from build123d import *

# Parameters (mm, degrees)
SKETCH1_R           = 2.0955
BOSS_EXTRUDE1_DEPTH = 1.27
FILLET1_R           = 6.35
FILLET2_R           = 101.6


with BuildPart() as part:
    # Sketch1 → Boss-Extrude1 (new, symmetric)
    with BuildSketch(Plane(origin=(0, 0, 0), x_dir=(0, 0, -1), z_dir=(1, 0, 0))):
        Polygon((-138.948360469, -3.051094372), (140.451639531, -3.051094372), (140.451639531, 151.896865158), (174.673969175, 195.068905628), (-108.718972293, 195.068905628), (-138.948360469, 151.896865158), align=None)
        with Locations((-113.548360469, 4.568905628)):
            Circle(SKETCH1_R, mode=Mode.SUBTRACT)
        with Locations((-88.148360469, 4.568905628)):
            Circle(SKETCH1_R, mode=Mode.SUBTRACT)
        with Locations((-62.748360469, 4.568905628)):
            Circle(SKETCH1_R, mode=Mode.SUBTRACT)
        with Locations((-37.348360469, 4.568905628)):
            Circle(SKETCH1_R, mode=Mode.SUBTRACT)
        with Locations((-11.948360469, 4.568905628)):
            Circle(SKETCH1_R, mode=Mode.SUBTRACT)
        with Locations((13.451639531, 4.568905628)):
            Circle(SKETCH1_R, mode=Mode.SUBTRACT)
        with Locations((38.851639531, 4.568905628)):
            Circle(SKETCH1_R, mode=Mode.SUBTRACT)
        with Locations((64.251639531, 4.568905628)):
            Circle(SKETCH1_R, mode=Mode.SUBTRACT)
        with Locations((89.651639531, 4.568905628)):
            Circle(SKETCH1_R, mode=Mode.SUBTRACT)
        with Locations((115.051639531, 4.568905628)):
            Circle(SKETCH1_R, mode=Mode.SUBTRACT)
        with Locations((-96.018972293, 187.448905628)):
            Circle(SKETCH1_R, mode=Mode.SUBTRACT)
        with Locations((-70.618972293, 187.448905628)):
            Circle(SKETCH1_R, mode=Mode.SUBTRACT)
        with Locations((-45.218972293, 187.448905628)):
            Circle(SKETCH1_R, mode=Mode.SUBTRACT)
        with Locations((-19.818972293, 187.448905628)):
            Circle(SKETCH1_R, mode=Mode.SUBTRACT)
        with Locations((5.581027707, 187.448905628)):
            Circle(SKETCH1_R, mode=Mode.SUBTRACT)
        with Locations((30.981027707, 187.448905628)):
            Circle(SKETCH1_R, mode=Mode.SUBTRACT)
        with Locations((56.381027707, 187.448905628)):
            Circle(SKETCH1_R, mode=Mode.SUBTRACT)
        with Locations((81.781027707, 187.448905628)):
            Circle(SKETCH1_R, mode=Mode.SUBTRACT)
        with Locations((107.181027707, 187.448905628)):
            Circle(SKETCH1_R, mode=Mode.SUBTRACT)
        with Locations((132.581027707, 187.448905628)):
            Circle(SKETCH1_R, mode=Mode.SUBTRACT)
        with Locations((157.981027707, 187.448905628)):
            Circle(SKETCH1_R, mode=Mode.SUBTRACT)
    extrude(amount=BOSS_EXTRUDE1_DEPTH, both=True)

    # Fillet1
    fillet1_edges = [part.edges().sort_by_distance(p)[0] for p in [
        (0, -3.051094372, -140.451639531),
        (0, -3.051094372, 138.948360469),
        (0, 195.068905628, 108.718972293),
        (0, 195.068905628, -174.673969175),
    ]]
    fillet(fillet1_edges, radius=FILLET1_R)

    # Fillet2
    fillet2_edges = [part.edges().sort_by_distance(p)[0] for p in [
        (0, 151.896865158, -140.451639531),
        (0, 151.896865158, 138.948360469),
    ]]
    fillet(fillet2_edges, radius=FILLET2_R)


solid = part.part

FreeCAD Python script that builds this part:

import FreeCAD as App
import Part
import Sketcher
from FreeCAD import Vector
Q = App.Units.Quantity


def edges_at(feature, points):
    """Names of the edges that pass closest to the given points."""
    edges = feature.Shape.Edges
    near = lambda p: min(range(len(edges)), key=lambda i: edges[i].distToShape(Part.Vertex(*p))[0])
    return sorted({f"Edge{near(p) + 1}" for p in points})

doc = App.newDocument("Part")
body = doc.addObject("PartDesign::Body", "Body")

sketch1 = body.newObject("Sketcher::SketchObject", "Sketch")
sketch1.AttachmentSupport = (doc.getObject("YZ_Plane"), [""])
sketch1.MapMode = "FlatFace"
sketch1.addGeometry([
    Part.LineSegment(Vector(-3.1, 138.9, 0), Vector(-3.1, -140.5, 0)),
    Part.LineSegment(Vector(-3.1, -140.5, 0), Vector(151.9, -140.5, 0)),
    Part.LineSegment(Vector(151.9, -140.5, 0), Vector(195.1, -174.7, 0)),
    Part.LineSegment(Vector(195.1, -174.7, 0), Vector(195.1, 108.7, 0)),
    Part.LineSegment(Vector(195.1, 108.7, 0), Vector(151.9, 138.9, 0)),
    Part.LineSegment(Vector(151.9, 138.9, 0), Vector(-3.1, 138.9, 0)),
    Part.Circle(Vector(4.6, 113.5, 0), Vector(0, 0, 1), 2.1),
    Part.Circle(Vector(4.6, 88.1, 0), Vector(0, 0, 1), 2.1),
    Part.Circle(Vector(4.6, 62.7, 0), Vector(0, 0, 1), 2.1),
    Part.Circle(Vector(4.6, 37.3, 0), Vector(0, 0, 1), 2.1),
    Part.Circle(Vector(4.6, 11.9, 0), Vector(0, 0, 1), 2.1),
    Part.Circle(Vector(4.6, -13.5, 0), Vector(0, 0, 1), 2.1),
    Part.Circle(Vector(4.6, -38.9, 0), Vector(0, 0, 1), 2.1),
    Part.Circle(Vector(4.6, -64.3, 0), Vector(0, 0, 1), 2.1),
    Part.Circle(Vector(4.6, -89.7, 0), Vector(0, 0, 1), 2.1),
    Part.Circle(Vector(4.6, -115.1, 0), Vector(0, 0, 1), 2.1),
    Part.Circle(Vector(187.4, 96, 0), Vector(0, 0, 1), 2.1),
    Part.Circle(Vector(187.4, 70.6, 0), Vector(0, 0, 1), 2.1),
    Part.Circle(Vector(187.4, 45.2, 0), Vector(0, 0, 1), 2.1),
    Part.Circle(Vector(187.4, 19.8, 0), Vector(0, 0, 1), 2.1),
    Part.Circle(Vector(187.4, -5.6, 0), Vector(0, 0, 1), 2.1),
    Part.Circle(Vector(187.4, -31, 0), Vector(0, 0, 1), 2.1),
    Part.Circle(Vector(187.4, -56.4, 0), Vector(0, 0, 1), 2.1),
    Part.Circle(Vector(187.4, -81.8, 0), Vector(0, 0, 1), 2.1),
    Part.Circle(Vector(187.4, -107.2, 0), Vector(0, 0, 1), 2.1),
    Part.Circle(Vector(187.4, -132.6, 0), Vector(0, 0, 1), 2.1),
    Part.Circle(Vector(187.4, -158, 0), Vector(0, 0, 1), 2.1),
], False)
sketch1.addConstraint([
    Sketcher.Constraint("Coincident", 0, 2, 1, 1),
    Sketcher.Constraint("Coincident", 1, 2, 2, 1),
    Sketcher.Constraint("Coincident", 2, 2, 3, 1),
    Sketcher.Constraint("Coincident", 3, 2, 4, 1),
    Sketcher.Constraint("Coincident", 4, 2, 5, 1),
    Sketcher.Constraint("Coincident", 5, 2, 0, 1),
    Sketcher.Constraint("Vertical", 0),
    Sketcher.Constraint("Horizontal", 1),
    Sketcher.Constraint("Vertical", 3),
    Sketcher.Constraint("Horizontal", 5),
    Sketcher.Constraint("Equal", 6, 7),
    Sketcher.Constraint("Equal", 7, 8),
    Sketcher.Constraint("Equal", 8, 9),
    Sketcher.Constraint("Equal", 9, 10),
    Sketcher.Constraint("Equal", 10, 11),
    Sketcher.Constraint("Equal", 11, 12),
    Sketcher.Constraint("Equal", 12, 13),
    Sketcher.Constraint("Equal", 13, 14),
    Sketcher.Constraint("Equal", 14, 15),
    Sketcher.Constraint("Equal", 15, 16),
    Sketcher.Constraint("Equal", 16, 17),
    Sketcher.Constraint("Equal", 17, 18),
    Sketcher.Constraint("Equal", 18, 19),
    Sketcher.Constraint("Equal", 19, 20),
    Sketcher.Constraint("Equal", 20, 21),
    Sketcher.Constraint("Equal", 21, 22),
    Sketcher.Constraint("Equal", 22, 23),
    Sketcher.Constraint("Equal", 23, 24),
    Sketcher.Constraint("Equal", 24, 25),
    Sketcher.Constraint("Equal", 25, 26),
    Sketcher.Constraint("Vertical", 6, 3, 7, 3),
    Sketcher.Constraint("Vertical", 7, 3, 8, 3),
    Sketcher.Constraint("Vertical", 8, 3, 9, 3),
    Sketcher.Constraint("Vertical", 9, 3, 10, 3),
    Sketcher.Constraint("Vertical", 10, 3, 11, 3),
    Sketcher.Constraint("Vertical", 11, 3, 12, 3),
    Sketcher.Constraint("Vertical", 12, 3, 13, 3),
    Sketcher.Constraint("Vertical", 13, 3, 14, 3),
    Sketcher.Constraint("Vertical", 14, 3, 15, 3),
    Sketcher.Constraint("Vertical", 16, 3, 17, 3),
    Sketcher.Constraint("Vertical", 17, 3, 18, 3),
    Sketcher.Constraint("Vertical", 18, 3, 19, 3),
    Sketcher.Constraint("Vertical", 19, 3, 20, 3),
    Sketcher.Constraint("Vertical", 20, 3, 21, 3),
    Sketcher.Constraint("Vertical", 21, 3, 22, 3),
    Sketcher.Constraint("Vertical", 22, 3, 23, 3),
    Sketcher.Constraint("Vertical", 23, 3, 24, 3),
    Sketcher.Constraint("Vertical", 24, 3, 25, 3),
    Sketcher.Constraint("Vertical", 25, 3, 26, 3),
    Sketcher.Constraint("Vertical", 1, 2, 4, 2),
    Sketcher.Constraint("DistanceY", 0, 2, 0, 1, Q("11 in")),
    Sketcher.Constraint("Diameter", 6, Q("0.165 in")),
    Sketcher.Constraint("Angle", 4, Q("145 deg")),
    Sketcher.Constraint("DistanceY", 7, 3, 6, 3, Q("1 in")),
    Sketcher.Constraint("DistanceY", 8, 3, 7, 3, Q("1 in")),
    Sketcher.Constraint("DistanceY", 9, 3, 8, 3, Q("1 in")),
    Sketcher.Constraint("DistanceY", 10, 3, 9, 3, Q("1 in")),
    Sketcher.Constraint("DistanceY", 11, 3, 10, 3, Q("1 in")),
    Sketcher.Constraint("DistanceY", 12, 3, 11, 3, Q("1 in")),
    Sketcher.Constraint("DistanceY", 13, 3, 12, 3, Q("1 in")),
    Sketcher.Constraint("DistanceY", 14, 3, 13, 3, Q("1 in")),
    Sketcher.Constraint("DistanceY", 15, 3, 14, 3, Q("1 in")),
    Sketcher.Constraint("DistanceY", 17, 3, 16, 3, Q("1 in")),
    Sketcher.Constraint("DistanceY", 18, 3, 17, 3, Q("1 in")),
    Sketcher.Constraint("DistanceY", 19, 3, 18, 3, Q("1 in")),
    Sketcher.Constraint("DistanceY", 20, 3, 19, 3, Q("1 in")),
    Sketcher.Constraint("DistanceY", 21, 3, 20, 3, Q("1 in")),
    Sketcher.Constraint("DistanceY", 22, 3, 21, 3, Q("1 in")),
    Sketcher.Constraint("DistanceY", 23, 3, 22, 3, Q("1 in")),
    Sketcher.Constraint("DistanceY", 24, 3, 23, 3, Q("1 in")),
    Sketcher.Constraint("DistanceY", 25, 3, 24, 3, Q("1 in")),
    Sketcher.Constraint("DistanceY", 26, 3, 25, 3, Q("1 in")),
    Sketcher.Constraint("DistanceY", 0, 2, 15, 3, Q("1 in")),
    Sketcher.Constraint("DistanceX", 7, 3, 16, 3, Q("7.2 in")),
    Sketcher.Constraint("DistanceX", 0, 2, 15, 3, Q("0.3 in")),
    Sketcher.Constraint("DistanceX", 26, 3, 2, 2, Q("0.3 in")),
    Sketcher.Constraint("DistanceY", 16, 3, 3, 2, Q("0.5 in")),
    Sketcher.Constraint("DistanceX", 1, 1, 1, 2, 154.94796),
    Sketcher.Constraint("DistanceY", 3, 1, 3, 2, 283.392941),
    Sketcher.Constraint("DistanceY", -1, 1, 6, 3, 113.54836),
    Sketcher.Constraint("DistanceX", -1, 1, 6, 3, 4.568906),
])
pad1 = body.newObject("PartDesign::Pad", "Pad")
pad1.Profile = sketch1
pad1.Length = Q("0.1 in")
pad1.Midplane = True
doc.recompute()

fillet = body.newObject("PartDesign::Fillet", "Fillet")
fillet.Base = (pad1, edges_at(pad1, [
    (0, -3.051, -140.452),
    (0, -3.051, 138.948),
    (0, 195.069, 108.719),
    (0, 195.069, -174.674),
]))
fillet.Radius = Q("0.25 in")
doc.recompute()

fillet2 = body.newObject("PartDesign::Fillet", "Fillet001")
fillet2.Base = (fillet, edges_at(fillet, [(0, 151.897, -140.452), (0, 151.897, 138.948)]))
fillet2.Radius = Q("4 in")

doc.recompute()
